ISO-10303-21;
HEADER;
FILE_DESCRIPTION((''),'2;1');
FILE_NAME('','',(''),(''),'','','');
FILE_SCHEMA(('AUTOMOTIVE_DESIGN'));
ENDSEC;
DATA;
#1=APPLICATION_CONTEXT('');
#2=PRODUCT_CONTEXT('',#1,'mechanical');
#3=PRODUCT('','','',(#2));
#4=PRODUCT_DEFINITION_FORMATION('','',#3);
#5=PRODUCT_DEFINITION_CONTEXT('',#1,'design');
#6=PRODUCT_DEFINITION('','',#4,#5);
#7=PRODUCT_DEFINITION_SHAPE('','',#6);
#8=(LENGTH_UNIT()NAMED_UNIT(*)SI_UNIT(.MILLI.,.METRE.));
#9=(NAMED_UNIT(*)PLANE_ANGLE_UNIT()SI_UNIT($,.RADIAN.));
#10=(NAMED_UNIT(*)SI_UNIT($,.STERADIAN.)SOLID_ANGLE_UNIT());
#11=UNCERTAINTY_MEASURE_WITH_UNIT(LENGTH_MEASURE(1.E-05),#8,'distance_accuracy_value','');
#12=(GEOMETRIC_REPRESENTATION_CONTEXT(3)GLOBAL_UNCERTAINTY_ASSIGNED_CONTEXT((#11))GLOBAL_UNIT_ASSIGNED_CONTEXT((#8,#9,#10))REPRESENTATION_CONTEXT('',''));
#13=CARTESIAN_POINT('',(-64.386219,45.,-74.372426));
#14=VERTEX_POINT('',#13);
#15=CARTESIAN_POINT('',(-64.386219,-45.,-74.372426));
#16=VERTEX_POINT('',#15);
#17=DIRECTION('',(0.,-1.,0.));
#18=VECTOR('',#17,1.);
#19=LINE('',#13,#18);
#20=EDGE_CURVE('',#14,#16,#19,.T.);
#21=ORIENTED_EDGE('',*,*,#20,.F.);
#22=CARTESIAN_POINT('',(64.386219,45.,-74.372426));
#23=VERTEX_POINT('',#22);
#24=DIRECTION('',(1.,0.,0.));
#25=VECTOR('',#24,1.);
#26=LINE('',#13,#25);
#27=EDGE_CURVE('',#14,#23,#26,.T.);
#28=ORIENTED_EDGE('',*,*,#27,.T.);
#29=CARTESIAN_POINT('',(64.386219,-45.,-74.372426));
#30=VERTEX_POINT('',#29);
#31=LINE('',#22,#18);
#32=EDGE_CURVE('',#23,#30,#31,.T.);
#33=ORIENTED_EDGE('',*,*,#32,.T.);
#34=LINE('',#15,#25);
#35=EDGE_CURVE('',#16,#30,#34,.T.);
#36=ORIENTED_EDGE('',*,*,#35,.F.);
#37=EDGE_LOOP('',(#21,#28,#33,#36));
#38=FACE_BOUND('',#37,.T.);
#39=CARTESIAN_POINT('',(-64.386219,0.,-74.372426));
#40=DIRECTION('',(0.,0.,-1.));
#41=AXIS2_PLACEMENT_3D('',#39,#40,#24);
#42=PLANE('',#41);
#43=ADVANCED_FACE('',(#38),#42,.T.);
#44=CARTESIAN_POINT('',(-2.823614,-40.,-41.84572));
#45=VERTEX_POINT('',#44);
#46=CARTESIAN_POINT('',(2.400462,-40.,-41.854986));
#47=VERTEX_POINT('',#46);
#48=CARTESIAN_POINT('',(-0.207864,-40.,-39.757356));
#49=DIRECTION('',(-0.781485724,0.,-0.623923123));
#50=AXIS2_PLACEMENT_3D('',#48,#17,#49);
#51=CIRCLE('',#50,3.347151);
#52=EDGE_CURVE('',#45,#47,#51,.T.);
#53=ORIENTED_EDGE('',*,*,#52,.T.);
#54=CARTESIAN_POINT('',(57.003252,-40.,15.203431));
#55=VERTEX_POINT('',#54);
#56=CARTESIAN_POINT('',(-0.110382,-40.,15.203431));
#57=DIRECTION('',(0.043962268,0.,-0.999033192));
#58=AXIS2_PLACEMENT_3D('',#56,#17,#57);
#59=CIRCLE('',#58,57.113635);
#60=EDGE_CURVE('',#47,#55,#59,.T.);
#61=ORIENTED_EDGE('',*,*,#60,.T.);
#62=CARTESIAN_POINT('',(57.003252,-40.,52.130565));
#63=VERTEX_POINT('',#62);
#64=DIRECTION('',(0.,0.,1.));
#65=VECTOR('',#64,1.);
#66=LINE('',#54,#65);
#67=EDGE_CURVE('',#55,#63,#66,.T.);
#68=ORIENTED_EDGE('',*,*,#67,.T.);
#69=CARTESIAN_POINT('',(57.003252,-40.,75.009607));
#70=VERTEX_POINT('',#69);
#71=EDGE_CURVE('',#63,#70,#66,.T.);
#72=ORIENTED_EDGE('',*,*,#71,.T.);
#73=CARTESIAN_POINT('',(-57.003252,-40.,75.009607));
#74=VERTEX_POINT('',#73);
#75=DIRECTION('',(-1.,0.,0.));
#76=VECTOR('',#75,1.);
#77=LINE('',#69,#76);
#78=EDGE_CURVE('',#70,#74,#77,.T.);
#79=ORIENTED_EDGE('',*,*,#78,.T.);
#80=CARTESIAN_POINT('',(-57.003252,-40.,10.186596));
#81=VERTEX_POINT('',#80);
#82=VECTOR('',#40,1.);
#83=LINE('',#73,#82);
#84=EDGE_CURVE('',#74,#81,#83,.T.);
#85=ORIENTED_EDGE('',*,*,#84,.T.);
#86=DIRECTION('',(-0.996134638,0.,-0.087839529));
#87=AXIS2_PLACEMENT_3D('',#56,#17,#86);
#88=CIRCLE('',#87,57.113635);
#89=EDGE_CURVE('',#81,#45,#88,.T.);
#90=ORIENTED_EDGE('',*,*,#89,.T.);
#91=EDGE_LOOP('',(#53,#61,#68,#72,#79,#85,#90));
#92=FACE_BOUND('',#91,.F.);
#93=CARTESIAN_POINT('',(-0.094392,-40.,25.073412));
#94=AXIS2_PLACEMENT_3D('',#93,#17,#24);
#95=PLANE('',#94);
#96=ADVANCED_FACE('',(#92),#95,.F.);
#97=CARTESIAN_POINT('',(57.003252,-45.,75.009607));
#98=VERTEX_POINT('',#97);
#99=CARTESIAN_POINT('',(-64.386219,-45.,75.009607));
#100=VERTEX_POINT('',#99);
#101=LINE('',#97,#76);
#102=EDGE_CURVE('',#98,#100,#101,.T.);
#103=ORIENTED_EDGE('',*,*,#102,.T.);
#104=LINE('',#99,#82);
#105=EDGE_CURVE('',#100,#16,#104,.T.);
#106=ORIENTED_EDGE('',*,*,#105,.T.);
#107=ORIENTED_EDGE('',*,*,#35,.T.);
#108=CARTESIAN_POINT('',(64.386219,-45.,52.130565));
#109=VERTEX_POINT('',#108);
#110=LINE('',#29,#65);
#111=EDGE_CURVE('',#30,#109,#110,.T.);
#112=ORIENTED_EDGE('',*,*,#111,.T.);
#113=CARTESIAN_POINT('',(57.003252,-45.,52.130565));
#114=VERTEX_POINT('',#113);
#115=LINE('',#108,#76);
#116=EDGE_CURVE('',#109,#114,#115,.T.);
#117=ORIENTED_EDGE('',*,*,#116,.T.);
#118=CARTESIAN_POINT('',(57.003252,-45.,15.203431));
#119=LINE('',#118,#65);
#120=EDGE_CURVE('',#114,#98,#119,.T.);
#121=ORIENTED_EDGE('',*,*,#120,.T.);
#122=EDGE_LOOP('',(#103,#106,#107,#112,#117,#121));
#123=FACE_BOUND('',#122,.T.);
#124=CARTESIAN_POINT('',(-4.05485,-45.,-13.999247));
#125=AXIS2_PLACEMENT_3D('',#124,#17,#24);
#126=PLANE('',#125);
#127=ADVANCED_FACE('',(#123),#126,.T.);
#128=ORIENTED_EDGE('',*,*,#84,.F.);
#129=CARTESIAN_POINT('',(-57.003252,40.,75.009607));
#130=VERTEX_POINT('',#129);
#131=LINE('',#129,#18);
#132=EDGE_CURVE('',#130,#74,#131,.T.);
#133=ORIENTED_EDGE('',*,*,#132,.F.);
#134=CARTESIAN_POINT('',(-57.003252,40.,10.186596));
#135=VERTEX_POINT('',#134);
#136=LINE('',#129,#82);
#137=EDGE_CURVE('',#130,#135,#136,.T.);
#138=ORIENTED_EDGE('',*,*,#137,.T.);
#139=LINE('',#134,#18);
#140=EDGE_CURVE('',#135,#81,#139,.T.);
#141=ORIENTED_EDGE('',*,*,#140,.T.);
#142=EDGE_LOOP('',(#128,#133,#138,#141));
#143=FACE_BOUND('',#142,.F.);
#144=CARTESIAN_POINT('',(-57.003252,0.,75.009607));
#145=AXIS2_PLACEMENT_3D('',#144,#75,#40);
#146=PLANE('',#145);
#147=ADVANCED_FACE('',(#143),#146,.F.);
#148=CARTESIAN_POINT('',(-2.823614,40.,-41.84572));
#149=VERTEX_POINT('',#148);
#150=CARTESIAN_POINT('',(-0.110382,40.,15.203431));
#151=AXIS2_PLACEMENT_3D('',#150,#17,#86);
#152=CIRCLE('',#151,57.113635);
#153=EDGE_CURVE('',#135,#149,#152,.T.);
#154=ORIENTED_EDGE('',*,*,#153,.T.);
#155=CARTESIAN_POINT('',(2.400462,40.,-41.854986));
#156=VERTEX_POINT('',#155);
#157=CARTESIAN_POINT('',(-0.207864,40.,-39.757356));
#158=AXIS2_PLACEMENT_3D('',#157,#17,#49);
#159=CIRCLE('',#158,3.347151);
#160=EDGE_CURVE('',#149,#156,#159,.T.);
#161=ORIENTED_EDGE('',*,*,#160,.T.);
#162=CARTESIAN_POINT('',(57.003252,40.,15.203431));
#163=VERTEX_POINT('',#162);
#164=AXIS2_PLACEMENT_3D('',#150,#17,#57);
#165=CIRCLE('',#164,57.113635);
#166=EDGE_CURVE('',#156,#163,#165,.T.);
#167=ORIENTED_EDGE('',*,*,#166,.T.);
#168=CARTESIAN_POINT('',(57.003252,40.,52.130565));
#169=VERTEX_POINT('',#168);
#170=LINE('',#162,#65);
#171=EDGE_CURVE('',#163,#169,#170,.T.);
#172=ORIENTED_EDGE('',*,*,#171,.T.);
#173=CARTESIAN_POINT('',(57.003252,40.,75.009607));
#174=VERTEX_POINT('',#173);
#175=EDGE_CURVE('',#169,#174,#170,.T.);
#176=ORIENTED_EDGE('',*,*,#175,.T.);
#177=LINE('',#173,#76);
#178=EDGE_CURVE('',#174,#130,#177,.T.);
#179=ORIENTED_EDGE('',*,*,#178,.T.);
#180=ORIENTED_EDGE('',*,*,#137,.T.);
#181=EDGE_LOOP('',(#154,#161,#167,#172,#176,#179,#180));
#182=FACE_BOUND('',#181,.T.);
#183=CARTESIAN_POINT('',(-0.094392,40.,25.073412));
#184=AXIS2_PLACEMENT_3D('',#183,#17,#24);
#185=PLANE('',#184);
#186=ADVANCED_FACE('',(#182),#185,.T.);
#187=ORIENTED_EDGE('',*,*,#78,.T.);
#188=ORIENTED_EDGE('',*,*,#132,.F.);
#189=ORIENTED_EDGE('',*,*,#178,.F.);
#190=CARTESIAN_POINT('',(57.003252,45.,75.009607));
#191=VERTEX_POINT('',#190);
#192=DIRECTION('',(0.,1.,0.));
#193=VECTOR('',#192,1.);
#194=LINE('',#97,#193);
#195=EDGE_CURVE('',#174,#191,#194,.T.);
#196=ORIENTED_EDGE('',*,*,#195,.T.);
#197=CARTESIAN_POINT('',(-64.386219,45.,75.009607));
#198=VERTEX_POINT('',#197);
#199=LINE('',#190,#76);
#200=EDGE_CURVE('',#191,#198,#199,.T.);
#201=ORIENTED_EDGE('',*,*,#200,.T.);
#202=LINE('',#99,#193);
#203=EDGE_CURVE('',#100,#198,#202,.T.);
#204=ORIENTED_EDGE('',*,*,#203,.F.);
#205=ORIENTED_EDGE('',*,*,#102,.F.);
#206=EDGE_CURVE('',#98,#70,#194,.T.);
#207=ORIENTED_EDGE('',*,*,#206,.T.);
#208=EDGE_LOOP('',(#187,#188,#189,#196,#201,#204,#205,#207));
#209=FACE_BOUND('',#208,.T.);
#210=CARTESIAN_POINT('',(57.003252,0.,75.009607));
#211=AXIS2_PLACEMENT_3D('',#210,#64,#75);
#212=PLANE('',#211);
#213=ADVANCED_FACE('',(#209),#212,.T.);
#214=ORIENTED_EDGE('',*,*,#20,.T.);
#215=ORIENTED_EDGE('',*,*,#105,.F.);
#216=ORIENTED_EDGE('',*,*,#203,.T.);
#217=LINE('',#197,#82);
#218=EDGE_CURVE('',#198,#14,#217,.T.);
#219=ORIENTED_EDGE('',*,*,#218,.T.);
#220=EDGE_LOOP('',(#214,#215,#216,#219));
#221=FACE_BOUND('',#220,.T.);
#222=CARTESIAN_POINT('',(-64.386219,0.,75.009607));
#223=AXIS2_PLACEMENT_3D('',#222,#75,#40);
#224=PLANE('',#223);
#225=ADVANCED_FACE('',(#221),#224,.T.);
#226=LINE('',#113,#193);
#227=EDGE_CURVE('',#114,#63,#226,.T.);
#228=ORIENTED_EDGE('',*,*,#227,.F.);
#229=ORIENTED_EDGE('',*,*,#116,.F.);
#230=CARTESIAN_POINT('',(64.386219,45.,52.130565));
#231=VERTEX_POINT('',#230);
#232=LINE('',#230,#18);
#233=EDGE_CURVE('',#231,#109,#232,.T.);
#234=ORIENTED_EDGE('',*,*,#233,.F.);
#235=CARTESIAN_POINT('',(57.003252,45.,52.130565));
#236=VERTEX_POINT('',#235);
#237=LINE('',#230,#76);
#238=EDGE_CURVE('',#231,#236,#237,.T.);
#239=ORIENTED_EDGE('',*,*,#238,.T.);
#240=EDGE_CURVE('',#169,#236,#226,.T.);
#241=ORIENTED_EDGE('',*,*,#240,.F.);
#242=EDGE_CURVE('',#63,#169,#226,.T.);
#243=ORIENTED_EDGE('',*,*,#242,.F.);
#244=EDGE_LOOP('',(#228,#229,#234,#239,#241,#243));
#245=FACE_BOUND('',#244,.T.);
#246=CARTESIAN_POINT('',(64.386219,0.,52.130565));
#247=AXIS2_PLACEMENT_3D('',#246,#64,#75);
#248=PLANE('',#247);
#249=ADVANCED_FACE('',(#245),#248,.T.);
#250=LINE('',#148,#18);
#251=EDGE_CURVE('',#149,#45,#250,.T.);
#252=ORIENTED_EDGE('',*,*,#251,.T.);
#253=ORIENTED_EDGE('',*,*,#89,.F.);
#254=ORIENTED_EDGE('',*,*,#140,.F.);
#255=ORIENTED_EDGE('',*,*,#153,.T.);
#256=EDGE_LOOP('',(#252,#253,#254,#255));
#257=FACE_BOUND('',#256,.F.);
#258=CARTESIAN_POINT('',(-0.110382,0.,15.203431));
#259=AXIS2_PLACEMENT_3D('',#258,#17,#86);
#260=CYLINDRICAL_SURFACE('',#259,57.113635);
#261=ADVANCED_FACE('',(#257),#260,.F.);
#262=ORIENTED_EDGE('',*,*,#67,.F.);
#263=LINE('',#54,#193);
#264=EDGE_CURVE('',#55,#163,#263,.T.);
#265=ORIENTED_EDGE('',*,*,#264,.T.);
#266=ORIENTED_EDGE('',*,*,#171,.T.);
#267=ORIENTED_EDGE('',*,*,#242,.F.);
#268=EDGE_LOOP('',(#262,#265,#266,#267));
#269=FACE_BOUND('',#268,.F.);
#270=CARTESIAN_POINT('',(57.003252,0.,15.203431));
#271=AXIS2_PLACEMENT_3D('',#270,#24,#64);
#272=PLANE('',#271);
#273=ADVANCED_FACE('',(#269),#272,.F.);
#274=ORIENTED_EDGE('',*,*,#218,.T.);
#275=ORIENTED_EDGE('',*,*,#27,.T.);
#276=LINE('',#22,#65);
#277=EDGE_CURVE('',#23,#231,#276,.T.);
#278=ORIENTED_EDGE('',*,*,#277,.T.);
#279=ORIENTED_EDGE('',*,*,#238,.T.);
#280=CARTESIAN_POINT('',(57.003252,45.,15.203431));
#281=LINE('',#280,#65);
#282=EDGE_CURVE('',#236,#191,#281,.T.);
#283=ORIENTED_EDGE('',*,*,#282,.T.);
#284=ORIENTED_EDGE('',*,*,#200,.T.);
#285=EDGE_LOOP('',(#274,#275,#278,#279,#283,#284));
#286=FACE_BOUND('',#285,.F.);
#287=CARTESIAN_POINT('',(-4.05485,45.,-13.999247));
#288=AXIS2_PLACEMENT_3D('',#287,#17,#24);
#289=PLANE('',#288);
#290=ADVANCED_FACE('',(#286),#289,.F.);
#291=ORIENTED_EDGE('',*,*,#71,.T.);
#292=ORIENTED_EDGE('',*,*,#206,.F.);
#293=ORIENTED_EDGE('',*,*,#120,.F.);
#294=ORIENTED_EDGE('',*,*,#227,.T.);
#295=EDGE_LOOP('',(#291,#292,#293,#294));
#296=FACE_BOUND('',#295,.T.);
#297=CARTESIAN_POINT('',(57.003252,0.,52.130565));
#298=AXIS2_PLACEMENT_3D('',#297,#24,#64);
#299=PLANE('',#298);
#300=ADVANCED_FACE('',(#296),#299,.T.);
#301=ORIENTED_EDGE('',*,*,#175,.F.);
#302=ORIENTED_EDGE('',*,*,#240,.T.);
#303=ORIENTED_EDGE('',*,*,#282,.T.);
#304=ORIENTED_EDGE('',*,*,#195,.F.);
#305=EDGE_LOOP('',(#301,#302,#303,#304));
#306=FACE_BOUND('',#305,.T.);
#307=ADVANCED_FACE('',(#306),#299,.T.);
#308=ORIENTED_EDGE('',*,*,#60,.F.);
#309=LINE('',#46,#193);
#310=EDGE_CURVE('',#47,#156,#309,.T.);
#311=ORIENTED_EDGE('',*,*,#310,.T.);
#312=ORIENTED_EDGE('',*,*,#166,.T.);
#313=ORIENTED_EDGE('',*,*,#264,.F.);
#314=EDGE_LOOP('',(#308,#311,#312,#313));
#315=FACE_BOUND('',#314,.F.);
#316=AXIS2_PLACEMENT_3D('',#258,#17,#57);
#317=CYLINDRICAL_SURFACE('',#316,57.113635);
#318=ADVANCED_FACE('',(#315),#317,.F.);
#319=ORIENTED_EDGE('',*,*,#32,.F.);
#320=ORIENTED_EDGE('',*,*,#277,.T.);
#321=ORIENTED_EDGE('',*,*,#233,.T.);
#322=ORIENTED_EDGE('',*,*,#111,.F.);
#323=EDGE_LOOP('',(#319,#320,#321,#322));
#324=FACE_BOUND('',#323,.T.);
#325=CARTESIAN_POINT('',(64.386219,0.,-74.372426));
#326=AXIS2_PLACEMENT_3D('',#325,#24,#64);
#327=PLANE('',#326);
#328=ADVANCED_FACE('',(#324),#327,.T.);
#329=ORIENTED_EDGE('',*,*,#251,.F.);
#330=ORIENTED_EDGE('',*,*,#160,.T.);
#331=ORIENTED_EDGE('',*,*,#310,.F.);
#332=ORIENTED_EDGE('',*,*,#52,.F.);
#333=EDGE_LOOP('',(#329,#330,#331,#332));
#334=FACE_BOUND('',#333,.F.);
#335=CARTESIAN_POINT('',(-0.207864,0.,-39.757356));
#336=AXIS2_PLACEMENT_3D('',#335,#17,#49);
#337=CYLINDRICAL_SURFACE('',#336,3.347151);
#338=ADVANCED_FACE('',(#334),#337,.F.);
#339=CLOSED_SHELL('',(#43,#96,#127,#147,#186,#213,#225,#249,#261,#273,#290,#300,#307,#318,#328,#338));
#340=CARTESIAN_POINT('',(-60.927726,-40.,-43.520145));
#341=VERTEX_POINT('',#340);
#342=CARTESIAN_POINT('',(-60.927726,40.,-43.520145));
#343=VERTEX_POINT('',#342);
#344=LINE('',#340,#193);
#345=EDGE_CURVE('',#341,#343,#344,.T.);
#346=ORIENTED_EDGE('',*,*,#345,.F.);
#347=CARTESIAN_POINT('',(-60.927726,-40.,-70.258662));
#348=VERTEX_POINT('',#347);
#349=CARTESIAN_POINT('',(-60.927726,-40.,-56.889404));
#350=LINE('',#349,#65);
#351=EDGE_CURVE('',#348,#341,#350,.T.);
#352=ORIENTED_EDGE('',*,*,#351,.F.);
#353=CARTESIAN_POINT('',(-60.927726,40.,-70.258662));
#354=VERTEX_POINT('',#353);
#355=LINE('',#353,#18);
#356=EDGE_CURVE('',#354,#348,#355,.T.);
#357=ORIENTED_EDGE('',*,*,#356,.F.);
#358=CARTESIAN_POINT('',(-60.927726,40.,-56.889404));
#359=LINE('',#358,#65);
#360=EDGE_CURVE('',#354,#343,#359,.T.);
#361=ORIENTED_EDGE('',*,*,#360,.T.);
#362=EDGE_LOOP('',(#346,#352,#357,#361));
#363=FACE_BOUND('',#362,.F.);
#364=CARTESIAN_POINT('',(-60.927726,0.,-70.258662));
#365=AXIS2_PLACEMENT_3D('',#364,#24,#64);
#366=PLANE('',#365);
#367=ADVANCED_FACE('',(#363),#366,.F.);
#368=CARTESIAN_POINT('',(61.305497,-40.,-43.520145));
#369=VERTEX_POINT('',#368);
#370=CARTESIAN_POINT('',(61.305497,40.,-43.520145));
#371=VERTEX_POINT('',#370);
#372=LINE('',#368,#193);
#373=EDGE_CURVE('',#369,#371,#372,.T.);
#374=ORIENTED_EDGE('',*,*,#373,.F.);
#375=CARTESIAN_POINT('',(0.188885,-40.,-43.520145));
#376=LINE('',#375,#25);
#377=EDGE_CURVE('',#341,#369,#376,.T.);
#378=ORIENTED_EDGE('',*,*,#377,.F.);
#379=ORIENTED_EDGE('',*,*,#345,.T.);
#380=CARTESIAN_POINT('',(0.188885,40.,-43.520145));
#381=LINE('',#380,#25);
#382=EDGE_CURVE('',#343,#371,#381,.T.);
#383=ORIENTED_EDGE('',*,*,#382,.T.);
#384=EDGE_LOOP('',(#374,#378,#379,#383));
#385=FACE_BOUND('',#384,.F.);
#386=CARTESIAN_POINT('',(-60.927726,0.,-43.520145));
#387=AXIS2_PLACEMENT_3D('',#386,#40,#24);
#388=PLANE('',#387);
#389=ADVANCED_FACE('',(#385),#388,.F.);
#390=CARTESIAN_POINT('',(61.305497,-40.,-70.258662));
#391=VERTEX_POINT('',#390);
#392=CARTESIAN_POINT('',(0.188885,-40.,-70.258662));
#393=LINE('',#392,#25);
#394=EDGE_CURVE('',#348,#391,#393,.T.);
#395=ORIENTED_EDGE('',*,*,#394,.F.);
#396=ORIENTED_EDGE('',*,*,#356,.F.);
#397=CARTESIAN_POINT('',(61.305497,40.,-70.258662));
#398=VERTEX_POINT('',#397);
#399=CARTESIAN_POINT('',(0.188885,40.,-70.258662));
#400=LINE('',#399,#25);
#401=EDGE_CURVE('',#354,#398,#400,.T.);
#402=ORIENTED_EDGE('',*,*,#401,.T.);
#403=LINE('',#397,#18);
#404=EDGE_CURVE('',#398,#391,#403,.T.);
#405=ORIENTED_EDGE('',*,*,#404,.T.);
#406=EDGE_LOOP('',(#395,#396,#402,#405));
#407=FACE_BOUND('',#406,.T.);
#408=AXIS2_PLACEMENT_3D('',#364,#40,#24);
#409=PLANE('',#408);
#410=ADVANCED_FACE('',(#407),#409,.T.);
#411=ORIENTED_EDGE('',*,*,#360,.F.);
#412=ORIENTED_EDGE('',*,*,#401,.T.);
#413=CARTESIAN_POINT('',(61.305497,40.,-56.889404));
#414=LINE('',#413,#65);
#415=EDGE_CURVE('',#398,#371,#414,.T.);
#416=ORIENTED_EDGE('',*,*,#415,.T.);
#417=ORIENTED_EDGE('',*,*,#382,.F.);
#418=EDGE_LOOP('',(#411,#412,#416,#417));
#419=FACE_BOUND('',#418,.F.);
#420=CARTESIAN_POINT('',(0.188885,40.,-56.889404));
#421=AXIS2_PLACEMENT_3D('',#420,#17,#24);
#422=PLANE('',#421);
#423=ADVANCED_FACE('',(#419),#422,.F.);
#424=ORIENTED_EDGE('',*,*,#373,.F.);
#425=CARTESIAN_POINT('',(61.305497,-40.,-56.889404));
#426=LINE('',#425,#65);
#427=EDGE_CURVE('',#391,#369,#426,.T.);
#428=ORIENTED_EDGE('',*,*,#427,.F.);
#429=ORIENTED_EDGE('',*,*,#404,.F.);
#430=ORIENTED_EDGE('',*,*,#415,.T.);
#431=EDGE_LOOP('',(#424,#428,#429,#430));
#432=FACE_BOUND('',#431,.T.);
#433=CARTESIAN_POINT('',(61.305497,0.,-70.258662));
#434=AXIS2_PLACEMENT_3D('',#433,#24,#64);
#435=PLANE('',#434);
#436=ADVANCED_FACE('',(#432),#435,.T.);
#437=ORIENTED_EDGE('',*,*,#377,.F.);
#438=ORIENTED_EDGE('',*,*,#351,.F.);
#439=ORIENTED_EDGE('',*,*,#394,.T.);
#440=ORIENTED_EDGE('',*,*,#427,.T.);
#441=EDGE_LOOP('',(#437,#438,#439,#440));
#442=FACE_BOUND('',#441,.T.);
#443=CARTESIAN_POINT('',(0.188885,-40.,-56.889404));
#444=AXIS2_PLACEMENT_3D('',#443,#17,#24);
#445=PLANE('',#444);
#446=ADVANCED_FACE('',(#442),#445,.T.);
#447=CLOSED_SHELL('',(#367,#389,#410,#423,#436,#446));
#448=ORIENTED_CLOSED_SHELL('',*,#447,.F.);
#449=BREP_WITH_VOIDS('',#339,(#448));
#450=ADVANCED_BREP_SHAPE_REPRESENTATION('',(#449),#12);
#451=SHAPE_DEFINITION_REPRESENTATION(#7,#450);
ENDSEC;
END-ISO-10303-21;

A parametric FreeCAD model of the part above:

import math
import FreeCAD as App
import Part
import Sketcher
from FreeCAD import Vector

doc = App.newDocument("Part")
body = doc.addObject("PartDesign::Body", "Body")

# Sketch on XZ plane
sketch1 = body.newObject("Sketcher::SketchObject", "Sketch")
sketch1.AttachmentSupport = (doc.getObject("XZ_Plane"), [""])
sketch1.MapMode = "FlatFace"
sketch1.addGeometry([
    Part.LineSegment(Vector(-64.386219, 75.009607, 0), Vector(-64.386219, -74.372426, 0)),  # 0
    Part.LineSegment(Vector(-64.386219, -74.372426, 0), Vector(64.386219, -74.372426, 0)),  # 1
    Part.LineSegment(Vector(64.386219, -74.372426, 0), Vector(64.386219, 52.130565, 0)),  # 2
    Part.LineSegment(Vector(64.386219, 52.130565, 0), Vector(57.003252, 52.130565, 0)),  # 3
    Part.LineSegment(Vector(57.003252, 52.130565, 0), Vector(57.003252, 75.009607, 0)),  # 4
    Part.LineSegment(Vector(57.003252, 75.009607, 0), Vector(-64.386219, 75.009607, 0)),  # 5
], False)
sketch1.addConstraint([
    Sketcher.Constraint("Coincident", 0, 2, 1, 1),
    Sketcher.Constraint("Coincident", 1, 2, 2, 1),
    Sketcher.Constraint("Coincident", 2, 2, 3, 1),
    Sketcher.Constraint("Coincident", 3, 2, 4, 1),
    Sketcher.Constraint("Coincident", 4, 2, 5, 1),
    Sketcher.Constraint("Coincident", 5, 2, 0, 1),
    Sketcher.Constraint("Vertical", 0),
    Sketcher.Constraint("Horizontal", 1),
    Sketcher.Constraint("Vertical", 2),
    Sketcher.Constraint("Horizontal", 3),
    Sketcher.Constraint("Vertical", 4),
    Sketcher.Constraint("Horizontal", 5),
    Sketcher.Constraint("DistanceX", 5, 2, 5, 1, 121.389471),
    Sketcher.Constraint("DistanceY", 2, 1, 2, 2, 126.502991),
    Sketcher.Constraint("DistanceY", 4, 1, 4, 2, 22.879042),
    Sketcher.Constraint("DistanceX", 1, 1, 1, 2, 128.772438),
    Sketcher.Constraint("DistanceX", 0, 2, -1, 1, 64.386219),
    Sketcher.Constraint("DistanceY", 0, 2, -1, 1, 74.372426),
])
pad1 = body.newObject("PartDesign::Pad", "Pad")
pad1.Profile = sketch1
pad1.Length = 90
pad1.Midplane = True

# Sketch on XZ plane
sketch2 = body.newObject("Sketcher::SketchObject", "Sketch001")
sketch2.AttachmentSupport = (doc.getObject("XZ_Plane"), [""])
sketch2.MapMode = "FlatFace"
sketch2.addGeometry([
    Part.LineSegment(Vector(57.003252, 75.009607, 0), Vector(-57.003252, 75.009607, 0)),  # 0
    Part.LineSegment(Vector(-57.003252, 75.009607, 0), Vector(-57.003252, 10.186596, 0)),  # 1
    Part.ArcOfCircle(Part.Circle(Vector(-0.110382, 15.203431, 0), Vector(0, 0, 1), 57.113635), math.radians(-174.960671), math.radians(-92.72291)),  # 2
    Part.ArcOfCircle(Part.Circle(Vector(-0.207864, -39.757356, 0), Vector(0, 0, 1), 3.347151), math.radians(-141.396809), math.radians(-38.806436)),  # 3
    Part.ArcOfCircle(Part.Circle(Vector(-0.110382, 15.203431, 0), Vector(0, 0, 1), 57.113635), math.radians(-87.480336), math.radians(0)),  # 4
    Part.LineSegment(Vector(57.003252, 15.203431, 0), Vector(57.003252, 75.009607, 0)),  # 5
], False)
sketch2.addConstraint([
    Sketcher.Constraint("Coincident", 0, 2, 1, 1),
    Sketcher.Constraint("Coincident", 1, 2, 2, 1),
    Sketcher.Constraint("Coincident", 2, 2, 3, 1),
    Sketcher.Constraint("Coincident", 3, 2, 4, 1),
    Sketcher.Constraint("Tangent", 4, 2, 5, 1),
    Sketcher.Constraint("Coincident", 5, 2, 0, 1),
    Sketcher.Constraint("Horizontal", 0),
    Sketcher.Constraint("Vertical", 1),
    Sketcher.Constraint("Vertical", 5),
    Sketcher.Constraint("Coincident", 4, 3, 2, 3),
    Sketcher.Constraint("Equal", 2, 4),
    Sketcher.Constraint("Radius", 3, 3.347151),
    Sketcher.Constraint("Radius", 2, 57.113635),
    Sketcher.Constraint("DistanceY", 1, 2, 1, 1, 64.823011),
    Sketcher.Constraint("DistanceX", 0, 2, 0, 1, 114.006504),
    Sketcher.Constraint("DistanceY", -1, 1, 2, 3, 15.203431),
    Sketcher.Constraint("DistanceY", 2, 2, -1, 1, 41.84572),
    Sketcher.Constraint("DistanceX", 3, 3, 2, 3, 0.097481),
    Sketcher.Constraint("DistanceX", 2, 3, -1, 1, 0.110382),
])
pocket1 = body.newObject("PartDesign::Pocket", "Pocket")
pocket1.Profile = sketch2
pocket1.Length = 80
pocket1.Midplane = True

# Sketch on XZ plane
sketch3 = body.newObject("Sketcher::SketchObject", "Sketch002")
sketch3.AttachmentSupport = (doc.getObject("XZ_Plane"), [""])
sketch3.MapMode = "FlatFace"
sketch3.addGeometry([
    Part.LineSegment(Vector(-60.927726, -43.520145, 0), Vector(-60.927726, -70.258662, 0)),
    Part.LineSegment(Vector(-60.927726, -70.258662, 0), Vector(61.305497, -70.258662, 0)),
    Part.LineSegment(Vector(61.305497, -70.258662, 0), Vector(61.305497, -43.520145, 0)),
    Part.LineSegment(Vector(61.305497, -43.520145, 0), Vector(-60.927726, -43.520145, 0)),
], False)
sketch3.addConstraint([
    Sketcher.Constraint("Coincident", 0, 2, 1, 1),
    Sketcher.Constraint("Coincident", 1, 2, 2, 1),
    Sketcher.Constraint("Coincident", 2, 2, 3, 1),
    Sketcher.Constraint("Coincident", 3, 2, 0, 1),
    Sketcher.Constraint("Vertical", 0),
    Sketcher.Constraint("Horizontal", 1),
    Sketcher.Constraint("Vertical", 2),
    Sketcher.Constraint("Horizontal", 3),
    Sketcher.Constraint("DistanceX", 1, 1, 1, 2, 122.233223),
    Sketcher.Constraint("DistanceY", 0, 2, 0, 1, 26.738517),
    Sketcher.Constraint("DistanceX", 0, 2, -1, 1, 60.927726),
    Sketcher.Constraint("DistanceY", 0, 2, -1, 1, 70.258662),
])
pocket2 = body.newObject("PartDesign::Pocket", "Pocket001")
pocket2.Profile = sketch3
pocket2.Length = 80
pocket2.Midplane = True

doc.recompute()
